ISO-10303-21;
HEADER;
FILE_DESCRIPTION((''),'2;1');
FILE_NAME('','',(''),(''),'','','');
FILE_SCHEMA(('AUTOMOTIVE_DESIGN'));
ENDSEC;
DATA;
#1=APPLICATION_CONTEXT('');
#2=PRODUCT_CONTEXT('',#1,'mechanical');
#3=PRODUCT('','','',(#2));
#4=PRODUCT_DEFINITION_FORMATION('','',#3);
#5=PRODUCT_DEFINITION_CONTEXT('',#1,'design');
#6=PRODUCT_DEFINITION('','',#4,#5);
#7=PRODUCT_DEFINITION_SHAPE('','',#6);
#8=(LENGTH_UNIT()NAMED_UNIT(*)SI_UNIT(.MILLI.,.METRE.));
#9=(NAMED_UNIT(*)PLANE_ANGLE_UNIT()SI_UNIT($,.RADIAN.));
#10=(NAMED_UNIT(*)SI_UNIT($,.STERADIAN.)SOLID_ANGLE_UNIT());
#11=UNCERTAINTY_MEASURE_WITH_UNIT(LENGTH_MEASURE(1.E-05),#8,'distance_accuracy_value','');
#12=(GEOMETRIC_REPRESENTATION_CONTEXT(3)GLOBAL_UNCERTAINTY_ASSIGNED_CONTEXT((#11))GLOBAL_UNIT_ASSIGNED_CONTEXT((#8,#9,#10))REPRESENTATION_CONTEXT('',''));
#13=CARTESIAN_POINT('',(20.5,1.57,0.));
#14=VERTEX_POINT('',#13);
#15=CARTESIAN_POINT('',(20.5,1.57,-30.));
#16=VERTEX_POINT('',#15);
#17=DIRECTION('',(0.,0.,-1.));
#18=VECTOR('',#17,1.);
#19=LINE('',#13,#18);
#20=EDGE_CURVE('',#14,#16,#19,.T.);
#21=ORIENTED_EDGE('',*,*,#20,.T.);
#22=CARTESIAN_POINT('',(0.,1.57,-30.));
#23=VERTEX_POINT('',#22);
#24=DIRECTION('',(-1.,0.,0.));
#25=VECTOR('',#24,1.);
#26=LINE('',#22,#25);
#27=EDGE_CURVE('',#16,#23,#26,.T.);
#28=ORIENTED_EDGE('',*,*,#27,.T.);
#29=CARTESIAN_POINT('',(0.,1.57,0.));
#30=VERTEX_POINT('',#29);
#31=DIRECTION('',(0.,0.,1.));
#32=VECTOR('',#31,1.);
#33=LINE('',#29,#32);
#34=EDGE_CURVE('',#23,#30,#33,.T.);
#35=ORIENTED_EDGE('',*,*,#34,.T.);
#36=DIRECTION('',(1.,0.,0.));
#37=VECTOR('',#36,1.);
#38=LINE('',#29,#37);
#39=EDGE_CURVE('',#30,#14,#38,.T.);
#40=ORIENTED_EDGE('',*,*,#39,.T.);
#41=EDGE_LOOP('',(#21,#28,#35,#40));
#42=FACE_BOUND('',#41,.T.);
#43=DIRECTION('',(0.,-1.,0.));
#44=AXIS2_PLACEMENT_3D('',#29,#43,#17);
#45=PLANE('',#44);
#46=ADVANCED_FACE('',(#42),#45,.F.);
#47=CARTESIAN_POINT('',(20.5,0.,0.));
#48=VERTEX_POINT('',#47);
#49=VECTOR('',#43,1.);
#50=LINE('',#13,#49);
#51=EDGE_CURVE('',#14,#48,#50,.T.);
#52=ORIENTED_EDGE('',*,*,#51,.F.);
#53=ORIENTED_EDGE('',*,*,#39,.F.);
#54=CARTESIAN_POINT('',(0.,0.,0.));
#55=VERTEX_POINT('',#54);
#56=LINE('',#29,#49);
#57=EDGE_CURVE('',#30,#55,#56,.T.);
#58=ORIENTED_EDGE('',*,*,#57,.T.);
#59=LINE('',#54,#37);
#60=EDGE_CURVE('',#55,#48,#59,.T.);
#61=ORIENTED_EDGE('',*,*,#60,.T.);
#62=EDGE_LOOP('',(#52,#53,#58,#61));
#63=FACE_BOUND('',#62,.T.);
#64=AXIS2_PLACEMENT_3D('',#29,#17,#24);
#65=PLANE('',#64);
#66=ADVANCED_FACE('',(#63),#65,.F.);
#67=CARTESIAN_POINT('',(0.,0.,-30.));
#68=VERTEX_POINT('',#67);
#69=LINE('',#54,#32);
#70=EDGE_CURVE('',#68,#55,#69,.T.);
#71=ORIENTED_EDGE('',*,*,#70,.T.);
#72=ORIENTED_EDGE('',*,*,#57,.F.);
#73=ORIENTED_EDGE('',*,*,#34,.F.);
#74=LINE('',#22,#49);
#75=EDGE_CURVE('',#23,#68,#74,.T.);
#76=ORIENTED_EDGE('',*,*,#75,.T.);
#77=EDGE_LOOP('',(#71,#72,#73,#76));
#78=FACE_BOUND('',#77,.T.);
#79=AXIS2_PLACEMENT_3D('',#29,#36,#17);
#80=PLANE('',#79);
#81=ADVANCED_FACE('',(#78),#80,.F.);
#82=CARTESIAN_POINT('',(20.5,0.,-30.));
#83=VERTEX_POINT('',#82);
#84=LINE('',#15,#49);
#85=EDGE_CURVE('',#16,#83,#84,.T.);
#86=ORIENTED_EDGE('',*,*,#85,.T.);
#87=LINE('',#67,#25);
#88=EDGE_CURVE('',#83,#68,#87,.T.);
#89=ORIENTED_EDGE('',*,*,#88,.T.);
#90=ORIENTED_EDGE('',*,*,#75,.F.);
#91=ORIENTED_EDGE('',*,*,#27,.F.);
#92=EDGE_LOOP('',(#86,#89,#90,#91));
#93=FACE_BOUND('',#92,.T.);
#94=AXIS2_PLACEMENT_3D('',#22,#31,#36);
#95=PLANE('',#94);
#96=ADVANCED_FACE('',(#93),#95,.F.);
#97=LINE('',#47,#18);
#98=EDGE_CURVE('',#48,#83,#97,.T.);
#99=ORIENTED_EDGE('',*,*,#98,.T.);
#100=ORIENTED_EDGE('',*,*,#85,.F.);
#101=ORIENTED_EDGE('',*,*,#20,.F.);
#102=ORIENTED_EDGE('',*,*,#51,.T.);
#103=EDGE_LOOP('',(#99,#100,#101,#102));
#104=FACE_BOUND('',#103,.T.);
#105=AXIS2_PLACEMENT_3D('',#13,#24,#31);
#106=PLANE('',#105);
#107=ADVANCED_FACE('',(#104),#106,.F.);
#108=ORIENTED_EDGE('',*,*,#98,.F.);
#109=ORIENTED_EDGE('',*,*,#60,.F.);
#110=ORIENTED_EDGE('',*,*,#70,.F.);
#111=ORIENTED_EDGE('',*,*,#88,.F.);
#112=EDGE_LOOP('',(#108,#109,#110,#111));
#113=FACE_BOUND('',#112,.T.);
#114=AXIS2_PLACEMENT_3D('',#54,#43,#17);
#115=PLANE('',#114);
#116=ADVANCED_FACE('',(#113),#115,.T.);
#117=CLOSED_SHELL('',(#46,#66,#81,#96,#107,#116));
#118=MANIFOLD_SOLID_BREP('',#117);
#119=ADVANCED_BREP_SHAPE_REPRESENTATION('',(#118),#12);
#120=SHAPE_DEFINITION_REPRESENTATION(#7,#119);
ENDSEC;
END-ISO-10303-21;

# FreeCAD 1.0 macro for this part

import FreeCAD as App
import Part
import Sketcher
Q = App.Units.Quantity

doc = App.newDocument("Part")
body = doc.addObject("PartDesign::Body", "Body")

sketch1 = doc.addObject("Sketcher::SketchObject", "Sketch")
body.addObject(sketch1)
sketch1.AttachmentSupport = (doc.XZ_Plane, [""])
sketch1.MapMode = "FlatFace"
sketch1.addGeometry(Part.LineSegment(App.Vector(0, -30, 0), App.Vector(0, 0, 0)), False)
sketch1.addGeometry(Part.LineSegment(App.Vector(0, 0, 0), App.Vector(20, 0, 0)), False)
sketch1.addGeometry(Part.LineSegment(App.Vector(20, 0, 0), App.Vector(20, -30, 0)), False)
sketch1.addGeometry(Part.LineSegment(App.Vector(20, -30, 0), App.Vector(0, -30, 0)), False)
sketch1.addConstraint(Sketcher.Constraint("Coincident", 0, 2, 1, 1))
sketch1.addConstraint(Sketcher.Constraint("Coincident", 1, 2, 2, 1))
sketch1.addConstraint(Sketcher.Constraint("Coincident", 2, 2, 3, 1))
sketch1.addConstraint(Sketcher.Constraint("Coincident", 3, 2, 0, 1))
sketch1.addConstraint(Sketcher.Constraint("Vertical", 0))
sketch1.addConstraint(Sketcher.Constraint("Horizontal", 1))
sketch1.addConstraint(Sketcher.Constraint("Vertical", 2))
sketch1.addConstraint(Sketcher.Constraint("Horizontal", 3))
sketch1.addConstraint(Sketcher.Constraint("Coincident", 0, 2, -1, 1))
sketch1.addConstraint(Sketcher.Constraint("DistanceY", 0, 1, 0, 2, Q("30 mm")))
sketch1.addConstraint(Sketcher.Constraint("DistanceX", 1, 1, 1, 2, Q("20.5 mm")))
pad1 = doc.addObject("PartDesign::Pad", "Pad")
body.addObject(pad1)
pad1.Profile = sketch1
pad1.Length = 1.57
pad1.Reversed = True

doc.recompute()
